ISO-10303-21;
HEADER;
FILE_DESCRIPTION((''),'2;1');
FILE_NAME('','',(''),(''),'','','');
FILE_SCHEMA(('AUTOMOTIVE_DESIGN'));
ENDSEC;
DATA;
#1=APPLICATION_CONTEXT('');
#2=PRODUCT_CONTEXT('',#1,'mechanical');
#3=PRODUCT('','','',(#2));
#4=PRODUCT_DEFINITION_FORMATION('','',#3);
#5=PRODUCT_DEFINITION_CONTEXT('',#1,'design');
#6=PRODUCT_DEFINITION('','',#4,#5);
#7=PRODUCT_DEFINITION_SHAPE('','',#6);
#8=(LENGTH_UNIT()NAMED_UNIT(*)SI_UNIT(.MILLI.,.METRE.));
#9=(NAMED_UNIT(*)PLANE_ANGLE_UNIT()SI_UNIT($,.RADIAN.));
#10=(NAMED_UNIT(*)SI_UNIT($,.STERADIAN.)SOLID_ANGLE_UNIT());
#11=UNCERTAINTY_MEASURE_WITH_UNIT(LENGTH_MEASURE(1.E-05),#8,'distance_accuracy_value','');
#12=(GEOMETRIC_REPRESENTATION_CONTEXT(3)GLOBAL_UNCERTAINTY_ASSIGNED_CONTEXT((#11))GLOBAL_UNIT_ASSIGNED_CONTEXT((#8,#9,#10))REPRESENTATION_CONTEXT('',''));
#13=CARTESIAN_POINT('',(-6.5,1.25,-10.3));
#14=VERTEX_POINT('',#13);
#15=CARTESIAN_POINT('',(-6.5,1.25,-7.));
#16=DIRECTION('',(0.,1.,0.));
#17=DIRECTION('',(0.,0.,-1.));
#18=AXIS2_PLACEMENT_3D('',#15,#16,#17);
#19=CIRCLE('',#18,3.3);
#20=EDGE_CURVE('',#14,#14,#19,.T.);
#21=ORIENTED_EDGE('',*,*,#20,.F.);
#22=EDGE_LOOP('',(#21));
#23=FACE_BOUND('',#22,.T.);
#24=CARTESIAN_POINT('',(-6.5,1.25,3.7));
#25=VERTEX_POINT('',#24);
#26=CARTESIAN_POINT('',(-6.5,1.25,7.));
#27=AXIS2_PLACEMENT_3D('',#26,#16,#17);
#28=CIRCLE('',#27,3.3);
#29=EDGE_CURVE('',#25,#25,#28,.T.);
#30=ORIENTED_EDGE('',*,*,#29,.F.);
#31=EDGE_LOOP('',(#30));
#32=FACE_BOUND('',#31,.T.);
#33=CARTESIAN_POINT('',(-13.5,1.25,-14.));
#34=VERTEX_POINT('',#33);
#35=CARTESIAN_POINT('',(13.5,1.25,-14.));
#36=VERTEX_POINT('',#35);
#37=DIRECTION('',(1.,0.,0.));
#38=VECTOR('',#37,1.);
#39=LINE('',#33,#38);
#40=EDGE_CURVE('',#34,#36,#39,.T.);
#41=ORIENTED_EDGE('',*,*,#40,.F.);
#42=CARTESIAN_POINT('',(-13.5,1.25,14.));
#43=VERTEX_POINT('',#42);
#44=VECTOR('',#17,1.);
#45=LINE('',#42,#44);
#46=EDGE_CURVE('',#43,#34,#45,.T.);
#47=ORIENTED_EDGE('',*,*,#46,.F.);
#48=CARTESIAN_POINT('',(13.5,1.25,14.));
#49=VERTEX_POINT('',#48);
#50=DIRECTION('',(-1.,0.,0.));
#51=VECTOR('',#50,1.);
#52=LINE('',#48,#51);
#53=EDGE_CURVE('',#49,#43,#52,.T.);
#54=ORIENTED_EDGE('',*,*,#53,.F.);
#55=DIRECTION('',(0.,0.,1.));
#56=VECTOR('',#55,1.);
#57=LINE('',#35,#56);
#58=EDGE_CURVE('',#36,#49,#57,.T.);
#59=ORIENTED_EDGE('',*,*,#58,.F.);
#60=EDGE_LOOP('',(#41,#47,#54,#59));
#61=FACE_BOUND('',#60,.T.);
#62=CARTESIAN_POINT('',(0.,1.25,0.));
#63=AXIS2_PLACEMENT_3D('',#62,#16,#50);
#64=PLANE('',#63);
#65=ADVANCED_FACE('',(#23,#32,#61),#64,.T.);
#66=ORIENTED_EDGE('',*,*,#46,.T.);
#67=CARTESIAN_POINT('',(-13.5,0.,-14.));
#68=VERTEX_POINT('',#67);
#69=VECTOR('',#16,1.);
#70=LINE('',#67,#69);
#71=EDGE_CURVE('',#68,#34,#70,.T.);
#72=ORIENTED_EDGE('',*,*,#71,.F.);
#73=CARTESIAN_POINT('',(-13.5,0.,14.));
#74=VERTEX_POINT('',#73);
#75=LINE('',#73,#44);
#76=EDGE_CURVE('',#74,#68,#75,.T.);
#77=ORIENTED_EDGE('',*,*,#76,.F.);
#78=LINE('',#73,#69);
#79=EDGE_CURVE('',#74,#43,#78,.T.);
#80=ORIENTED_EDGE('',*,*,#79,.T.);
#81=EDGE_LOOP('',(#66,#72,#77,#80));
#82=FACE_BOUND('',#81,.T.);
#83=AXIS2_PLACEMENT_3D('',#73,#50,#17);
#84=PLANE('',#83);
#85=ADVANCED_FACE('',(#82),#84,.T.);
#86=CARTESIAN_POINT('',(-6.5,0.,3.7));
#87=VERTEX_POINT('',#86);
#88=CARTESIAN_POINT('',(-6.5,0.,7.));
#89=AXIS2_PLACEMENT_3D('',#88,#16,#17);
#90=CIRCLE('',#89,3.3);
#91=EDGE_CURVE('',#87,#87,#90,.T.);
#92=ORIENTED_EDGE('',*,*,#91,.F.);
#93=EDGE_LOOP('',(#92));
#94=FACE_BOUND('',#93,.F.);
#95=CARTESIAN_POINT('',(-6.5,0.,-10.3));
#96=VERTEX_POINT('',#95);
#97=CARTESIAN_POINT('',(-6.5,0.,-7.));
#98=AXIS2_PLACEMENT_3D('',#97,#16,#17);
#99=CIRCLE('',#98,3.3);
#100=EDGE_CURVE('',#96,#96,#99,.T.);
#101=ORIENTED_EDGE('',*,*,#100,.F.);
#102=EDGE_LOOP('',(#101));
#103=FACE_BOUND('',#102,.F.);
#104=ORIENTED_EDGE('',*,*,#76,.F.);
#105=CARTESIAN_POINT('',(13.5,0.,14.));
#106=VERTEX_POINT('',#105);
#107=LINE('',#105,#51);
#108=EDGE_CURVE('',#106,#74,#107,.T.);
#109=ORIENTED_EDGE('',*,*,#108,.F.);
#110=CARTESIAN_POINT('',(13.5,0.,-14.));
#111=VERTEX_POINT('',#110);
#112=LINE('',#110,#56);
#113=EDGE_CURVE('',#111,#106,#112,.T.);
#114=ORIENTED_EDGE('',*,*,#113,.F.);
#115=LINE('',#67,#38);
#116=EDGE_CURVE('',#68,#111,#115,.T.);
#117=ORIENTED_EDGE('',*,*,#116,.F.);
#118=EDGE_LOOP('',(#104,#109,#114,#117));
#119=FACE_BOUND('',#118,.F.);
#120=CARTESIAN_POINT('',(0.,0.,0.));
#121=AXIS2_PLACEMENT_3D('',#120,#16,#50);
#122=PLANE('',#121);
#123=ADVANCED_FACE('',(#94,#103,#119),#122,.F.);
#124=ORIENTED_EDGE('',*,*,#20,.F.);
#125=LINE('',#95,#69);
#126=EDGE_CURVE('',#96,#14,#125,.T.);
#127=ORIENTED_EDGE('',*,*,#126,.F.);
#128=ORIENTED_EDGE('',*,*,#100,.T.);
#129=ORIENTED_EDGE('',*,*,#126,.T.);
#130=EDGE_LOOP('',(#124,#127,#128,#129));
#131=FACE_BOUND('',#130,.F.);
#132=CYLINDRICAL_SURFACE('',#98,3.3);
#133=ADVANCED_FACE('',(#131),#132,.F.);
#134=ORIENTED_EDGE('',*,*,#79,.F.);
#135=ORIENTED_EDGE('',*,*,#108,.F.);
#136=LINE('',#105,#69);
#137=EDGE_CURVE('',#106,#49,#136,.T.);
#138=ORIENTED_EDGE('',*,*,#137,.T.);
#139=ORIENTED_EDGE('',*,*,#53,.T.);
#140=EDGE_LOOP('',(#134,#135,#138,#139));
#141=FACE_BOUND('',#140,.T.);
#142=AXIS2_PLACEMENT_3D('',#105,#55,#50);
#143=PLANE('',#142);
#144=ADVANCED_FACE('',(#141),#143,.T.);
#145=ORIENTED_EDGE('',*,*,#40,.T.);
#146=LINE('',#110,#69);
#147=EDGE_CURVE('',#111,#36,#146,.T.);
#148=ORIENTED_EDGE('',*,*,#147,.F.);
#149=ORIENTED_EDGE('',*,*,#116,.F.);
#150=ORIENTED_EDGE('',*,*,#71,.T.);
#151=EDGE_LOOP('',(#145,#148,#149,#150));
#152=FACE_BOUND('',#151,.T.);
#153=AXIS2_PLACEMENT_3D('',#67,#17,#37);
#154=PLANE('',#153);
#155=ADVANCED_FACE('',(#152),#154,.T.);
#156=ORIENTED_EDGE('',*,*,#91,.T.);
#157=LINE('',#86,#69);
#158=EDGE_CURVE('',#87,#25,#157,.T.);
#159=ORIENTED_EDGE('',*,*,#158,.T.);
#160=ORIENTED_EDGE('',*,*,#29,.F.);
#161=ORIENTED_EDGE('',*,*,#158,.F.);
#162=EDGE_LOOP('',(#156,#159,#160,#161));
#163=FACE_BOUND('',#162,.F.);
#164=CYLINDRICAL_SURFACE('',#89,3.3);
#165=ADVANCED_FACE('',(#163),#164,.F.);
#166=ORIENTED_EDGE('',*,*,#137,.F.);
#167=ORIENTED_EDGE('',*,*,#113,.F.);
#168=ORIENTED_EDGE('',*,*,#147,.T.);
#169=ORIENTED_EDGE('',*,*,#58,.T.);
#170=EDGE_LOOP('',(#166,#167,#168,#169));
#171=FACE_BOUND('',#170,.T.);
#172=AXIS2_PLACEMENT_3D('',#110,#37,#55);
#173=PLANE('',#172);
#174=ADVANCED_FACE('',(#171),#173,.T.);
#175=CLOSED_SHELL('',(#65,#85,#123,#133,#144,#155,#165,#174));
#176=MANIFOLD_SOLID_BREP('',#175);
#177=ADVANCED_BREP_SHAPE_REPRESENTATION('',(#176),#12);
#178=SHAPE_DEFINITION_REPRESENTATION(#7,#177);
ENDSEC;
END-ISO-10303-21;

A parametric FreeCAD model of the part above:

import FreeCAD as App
import Part
import Sketcher
Q = App.Units.Quantity


def add_polygon(sketch, points):
    """Adds a closed chain of lines whose ends are joined by coincident constraints."""
    first, n = sketch.GeometryCount, len(points)
    for a, b in zip(points, points[1:] + points[:1]):
        sketch.addGeometry(Part.LineSegment(App.Vector(*a, 0), App.Vector(*b, 0)), False)
    for i in range(n):
        sketch.addConstraint(Sketcher.Constraint("Coincident", first + i, 2, first + (i + 1) % n, 1))

doc = App.newDocument("Part")
body = doc.addObject("PartDesign::Body", "Body")

# Sketch on XZ plane
sketch1 = body.newObject("Sketcher::SketchObject", "Sketch")
sketch1.AttachmentSupport = (doc.getObject("XZ_Plane"), [""])
sketch1.MapMode = "FlatFace"
add_polygon(sketch1, [(-14, 14), (14, 14), (14, -14), (-14, -14)])  # lines 0-3
sketch1.addConstraint([
    Sketcher.Constraint("Horizontal", 0),
    Sketcher.Constraint("Vertical", 1),
    Sketcher.Constraint("Horizontal", 2),
    Sketcher.Constraint("Vertical", 3),
    Sketcher.Constraint("Symmetric", 0, 2, 2, 2, -1, 1),
    Sketcher.Constraint("DistanceX", 0, 1, 0, 2, Q("27 mm")),
    Sketcher.Constraint("DistanceY", 1, 2, 1, 1, Q("28 mm")),
])
pad1 = body.newObject("PartDesign::Pad", "Pad")
pad1.Profile = sketch1
pad1.Length = 1.25
pad1.Reversed = True

# Sketch on XZ plane
sketch2 = body.newObject("Sketcher::SketchObject", "Sketch001")
sketch2.AttachmentSupport = (doc.getObject("XZ_Plane"), [""])
sketch2.MapMode = "FlatFace"
sketch2.addGeometry([
    Part.Circle(App.Vector(-6.5, 7, 0), App.Vector(0, 0, 1), 3.3),
    Part.Circle(App.Vector(-6.5, -7, 0), App.Vector(0, 0, 1), 3.3),
], False)
sketch2.addConstraint([
    Sketcher.Constraint("Equal", 0, 1),
    Sketcher.Constraint("Symmetric", 0, 3, 1, 3, -1),
    Sketcher.Constraint("Diameter", 0, Q("6.6 mm")),
    Sketcher.Constraint("DistanceY", -1, 1, 0, 3, Q("7 mm")),
    Sketcher.Constraint("DistanceX", 0, 3, -1, 1, Q("6.5 mm")),
])
doc.recompute()
hole = body.newObject("PartDesign::Hole", "Hole")
hole.Profile = sketch2
hole.ThreadType = "None"
hole.Diameter = 6.6
hole.DepthType = "Dimension"
hole.Depth = 8
hole.DrillPoint = "Angled"
hole.DrillPointAngle = 118

doc.recompute()
